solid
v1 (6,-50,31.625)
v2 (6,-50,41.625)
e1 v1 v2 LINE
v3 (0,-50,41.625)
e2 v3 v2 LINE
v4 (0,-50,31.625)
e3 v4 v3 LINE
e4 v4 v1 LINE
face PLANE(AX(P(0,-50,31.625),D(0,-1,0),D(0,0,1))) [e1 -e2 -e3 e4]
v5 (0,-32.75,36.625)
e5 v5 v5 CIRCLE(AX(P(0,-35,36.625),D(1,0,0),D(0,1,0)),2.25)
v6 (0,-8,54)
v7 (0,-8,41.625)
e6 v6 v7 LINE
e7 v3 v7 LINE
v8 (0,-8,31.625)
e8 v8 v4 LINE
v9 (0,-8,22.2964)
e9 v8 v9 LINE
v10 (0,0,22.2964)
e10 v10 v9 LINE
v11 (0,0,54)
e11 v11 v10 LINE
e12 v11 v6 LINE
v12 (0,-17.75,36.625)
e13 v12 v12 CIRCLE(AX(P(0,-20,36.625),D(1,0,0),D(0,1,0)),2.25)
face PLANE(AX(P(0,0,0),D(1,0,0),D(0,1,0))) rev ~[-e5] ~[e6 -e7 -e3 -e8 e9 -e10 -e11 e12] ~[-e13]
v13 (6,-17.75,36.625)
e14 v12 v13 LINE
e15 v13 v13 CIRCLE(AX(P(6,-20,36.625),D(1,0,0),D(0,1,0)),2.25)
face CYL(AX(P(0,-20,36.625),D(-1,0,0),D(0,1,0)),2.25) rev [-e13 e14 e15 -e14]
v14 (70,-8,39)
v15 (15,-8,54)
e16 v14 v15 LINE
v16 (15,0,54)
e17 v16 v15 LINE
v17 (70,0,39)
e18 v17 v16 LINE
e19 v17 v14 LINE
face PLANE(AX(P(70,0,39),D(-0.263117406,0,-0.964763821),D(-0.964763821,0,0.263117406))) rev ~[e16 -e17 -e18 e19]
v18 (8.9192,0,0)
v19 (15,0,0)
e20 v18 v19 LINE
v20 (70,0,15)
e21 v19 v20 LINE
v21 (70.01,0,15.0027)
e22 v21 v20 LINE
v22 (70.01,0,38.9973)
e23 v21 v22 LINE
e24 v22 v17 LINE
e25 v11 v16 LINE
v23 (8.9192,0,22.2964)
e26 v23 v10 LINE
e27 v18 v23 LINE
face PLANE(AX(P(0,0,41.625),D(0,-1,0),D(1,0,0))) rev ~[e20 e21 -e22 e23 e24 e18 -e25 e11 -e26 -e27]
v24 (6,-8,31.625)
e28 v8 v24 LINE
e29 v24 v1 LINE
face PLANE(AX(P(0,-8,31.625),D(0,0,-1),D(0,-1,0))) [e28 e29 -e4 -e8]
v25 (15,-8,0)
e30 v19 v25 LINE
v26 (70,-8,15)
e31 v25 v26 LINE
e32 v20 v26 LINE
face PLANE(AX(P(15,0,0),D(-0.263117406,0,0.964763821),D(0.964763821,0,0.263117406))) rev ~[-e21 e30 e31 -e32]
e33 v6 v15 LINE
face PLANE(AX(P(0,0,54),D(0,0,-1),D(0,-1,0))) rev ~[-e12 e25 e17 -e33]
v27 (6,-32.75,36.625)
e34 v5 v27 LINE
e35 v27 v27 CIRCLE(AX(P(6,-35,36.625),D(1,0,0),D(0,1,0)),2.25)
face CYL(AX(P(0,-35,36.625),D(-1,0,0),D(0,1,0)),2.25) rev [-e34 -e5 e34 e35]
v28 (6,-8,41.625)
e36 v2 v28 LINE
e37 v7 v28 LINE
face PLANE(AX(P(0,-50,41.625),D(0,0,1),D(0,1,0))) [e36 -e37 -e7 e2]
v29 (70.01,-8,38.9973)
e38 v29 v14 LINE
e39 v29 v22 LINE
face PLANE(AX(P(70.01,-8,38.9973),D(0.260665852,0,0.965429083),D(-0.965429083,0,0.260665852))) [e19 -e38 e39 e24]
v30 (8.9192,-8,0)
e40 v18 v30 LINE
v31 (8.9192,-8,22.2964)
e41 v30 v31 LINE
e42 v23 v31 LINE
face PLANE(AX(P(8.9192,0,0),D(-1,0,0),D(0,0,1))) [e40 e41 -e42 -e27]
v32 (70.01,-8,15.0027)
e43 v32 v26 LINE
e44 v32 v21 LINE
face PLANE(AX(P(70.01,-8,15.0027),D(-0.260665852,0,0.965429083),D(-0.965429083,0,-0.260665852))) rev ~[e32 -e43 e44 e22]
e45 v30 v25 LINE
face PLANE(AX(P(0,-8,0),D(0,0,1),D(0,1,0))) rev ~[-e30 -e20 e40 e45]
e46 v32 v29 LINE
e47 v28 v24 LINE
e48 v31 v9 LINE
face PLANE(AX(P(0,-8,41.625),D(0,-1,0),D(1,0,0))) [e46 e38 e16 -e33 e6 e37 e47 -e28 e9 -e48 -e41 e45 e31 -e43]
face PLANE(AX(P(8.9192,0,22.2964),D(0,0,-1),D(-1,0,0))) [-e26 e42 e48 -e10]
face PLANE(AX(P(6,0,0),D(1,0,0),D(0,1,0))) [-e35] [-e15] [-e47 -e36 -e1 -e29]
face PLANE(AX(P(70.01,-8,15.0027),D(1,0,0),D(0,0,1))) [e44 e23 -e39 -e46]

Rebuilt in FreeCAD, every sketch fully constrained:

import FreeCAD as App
import Part
import Sketcher
from FreeCAD import Vector

doc = App.newDocument("Part")
params = doc.addObject("Spreadsheet::Sheet", "Params")
for row, (alias, value) in enumerate([
    ("sketch1_diameter", "4.5 mm"),
    ("sketch1_height", "10 mm"),
    ("pad1_length", "6 mm"),
    ("sketch2_width", "8 mm"),
    ("sketch2_height", "54 mm"),
    ("pad2_length", "70 mm"),
    ("sketch3_height", "15 mm"),
    ("sketch3_width", "55 mm"),
    ("pocket1_length", "8 mm"),
    ("sketch4_height", "24 mm"),
    ("pad3_length", "8 mm"),
], start=1):
    params.set(f"A{row}", alias)
    params.set(f"B{row}", "=" + value)
    params.setAlias(f"B{row}", alias)

body = doc.addObject("PartDesign::Body", "Body")

# Sketch on YZ plane
sketch1 = body.newObject("Sketcher::SketchObject", "Sketch")
sketch1.AttachmentSupport = (doc.getObject("YZ_Plane"), [""])
sketch1.MapMode = "FlatFace"
sketch1.addGeometry([
    Part.LineSegment(Vector(-8, 41.6, 0), Vector(-50, 41.6, 0)),  # 0
    Part.LineSegment(Vector(-50, 41.6, 0), Vector(-50, 31.6, 0)),  # 1
    Part.LineSegment(Vector(-50, 31.6, 0), Vector(-8, 31.6, 0)),  # 2
    Part.LineSegment(Vector(-8, 31.6, 0), Vector(-8, 41.6, 0)),  # 3
    Part.Circle(Vector(-35, 36.6, 0), Vector(0, 0, 1), 2.2),  # 4
    Part.Circle(Vector(-20, 36.6, 0), Vector(0, 0, 1), 2.2),  # 5
], False)
sketch1.addConstraint([
    Sketcher.Constraint("Coincident", 0, 2, 1, 1),
    Sketcher.Constraint("Coincident", 1, 2, 2, 1),
    Sketcher.Constraint("Coincident", 2, 2, 3, 1),
    Sketcher.Constraint("Coincident", 3, 2, 0, 1),
    Sketcher.Constraint("Horizontal", 0),
    Sketcher.Constraint("Vertical", 1),
    Sketcher.Constraint("Horizontal", 2),
    Sketcher.Constraint("Vertical", 3),
    Sketcher.Constraint("Equal", 4, 5),
    Sketcher.Constraint("Horizontal", 4, 3, 5, 3),
    Sketcher.Constraint("Diameter", 4, 4.5),
    Sketcher.Constraint("DistanceY", 1, 2, 1, 1, 10.0),
    Sketcher.Constraint("DistanceX", 5, 3, -1, 1, 20.0),
    Sketcher.Constraint("DistanceX", 0, 2, -1, 1, 50.0),
    Sketcher.Constraint("DistanceX", 2, 2, -1, 1, 8.0),
    Sketcher.Constraint("DistanceX", 4, 3, 5, 3, 15.0),
    Sketcher.Constraint("DistanceY", 4, 3, 0, 2, 5.0),
    Sketcher.Constraint("DistanceY", -1, 1, 4, 3, 36.625),
])
sketch1.setExpression("Constraints[10]", "Params.sketch1_diameter")
sketch1.setExpression("Constraints[11]", "Params.sketch1_height")
pad1 = body.newObject("PartDesign::Pad", "Pad")
pad1.Profile = sketch1
pad1.setExpression("Length", "Params.pad1_length")

# Sketch on YZ plane
sketch2 = body.newObject("Sketcher::SketchObject", "Sketch001")
sketch2.AttachmentSupport = (doc.getObject("YZ_Plane"), [""])
sketch2.MapMode = "FlatFace"
sketch2.addGeometry([
    Part.LineSegment(Vector(-8, 54, 0), Vector(-8, 0, 0)),
    Part.LineSegment(Vector(-8, 0, 0), Vector(0, 0, 0)),
    Part.LineSegment(Vector(0, 0, 0), Vector(0, 54, 0)),
    Part.LineSegment(Vector(0, 54, 0), Vector(-8, 54, 0)),
], False)
sketch2.addConstraint([
    Sketcher.Constraint("Coincident", 0, 2, 1, 1),
    Sketcher.Constraint("Coincident", 1, 2, 2, 1),
    Sketcher.Constraint("Coincident", 2, 2, 3, 1),
    Sketcher.Constraint("Coincident", 3, 2, 0, 1),
    Sketcher.Constraint("Vertical", 0),
    Sketcher.Constraint("Horizontal", 1),
    Sketcher.Constraint("Vertical", 2),
    Sketcher.Constraint("Horizontal", 3),
    Sketcher.Constraint("Coincident", 1, 2, -1, 1),
    Sketcher.Constraint("DistanceX", 1, 1, 1, 2, 8.0),
    Sketcher.Constraint("DistanceY", 0, 2, 0, 1, 54.0),
])
sketch2.setExpression("Constraints[9]", "Params.sketch2_width")
sketch2.setExpression("Constraints[10]", "Params.sketch2_height")
pad2 = body.newObject("PartDesign::Pad", "Pad001")
pad2.Profile = sketch2
pad2.setExpression("Length", "Params.pad2_length")

# Sketch on XZ plane
sketch3 = body.newObject("Sketcher::SketchObject", "Sketch002")
sketch3.AttachmentSupport = (doc.getObject("XZ_Plane"), [""])
sketch3.MapMode = "FlatFace"
sketch3.addGeometry([
    Part.LineSegment(Vector(70, 15, 0), Vector(70, 0, 0)),  # 0
    Part.LineSegment(Vector(70, 0, 0), Vector(15, 0, 0)),  # 1
    Part.LineSegment(Vector(15, 0, 0), Vector(70, 15, 0)),  # 2
    Part.LineSegment(Vector(70, 54, 0), Vector(70, 39, 0)),  # 3
    Part.LineSegment(Vector(70, 39, 0), Vector(15, 54, 0)),  # 4
    Part.LineSegment(Vector(15, 54, 0), Vector(70, 54, 0)),  # 5
    Part.LineSegment(Vector(9, 22, 0), Vector(9, 0, 0)),  # 6
    Part.LineSegment(Vector(9, 0, 0), Vector(0, 0, 0)),  # 7
    Part.LineSegment(Vector(0, 0, 0), Vector(0, 22, 0)),  # 8
    Part.LineSegment(Vector(0, 22, 0), Vector(9, 22, 0)),  # 9
], False)
sketch3.addConstraint([
    Sketcher.Constraint("Coincident", 0, 2, 1, 1),
    Sketcher.Constraint("Coincident", 1, 2, 2, 1),
    Sketcher.Constraint("Coincident", 2, 2, 0, 1),
    Sketcher.Constraint("Coincident", 3, 2, 4, 1),
    Sketcher.Constraint("Coincident", 4, 2, 5, 1),
    Sketcher.Constraint("Coincident", 5, 2, 3, 1),
    Sketcher.Constraint("Coincident", 6, 2, 7, 1),
    Sketcher.Constraint("Coincident", 7, 2, 8, 1),
    Sketcher.Constraint("Coincident", 8, 2, 9, 1),
    Sketcher.Constraint("Coincident", 9, 2, 6, 1),
    Sketcher.Constraint("Vertical", 0),
    Sketcher.Constraint("Horizontal", 1),
    Sketcher.Constraint("Vertical", 3),
    Sketcher.Constraint("Horizontal", 5),
    Sketcher.Constraint("Vertical", 6),
    Sketcher.Constraint("Horizontal", 7),
    Sketcher.Constraint("Vertical", 8),
    Sketcher.Constraint("Horizontal", 9),
    Sketcher.Constraint("Coincident", 7, 2, -1, 1),
    Sketcher.Constraint("PointOnObject", 0, 2, -1),
    Sketcher.Constraint("Vertical", 2, 2, 3, 2),
    Sketcher.Constraint("Vertical", 1, 2, 4, 2),
    Sketcher.Constraint("Equal", 0, 3),
    Sketcher.Constraint("DistanceY", 0, 2, 0, 1, 15.0),
    Sketcher.Constraint("DistanceX", -1, 1, 1, 2, 15.0),
    Sketcher.Constraint("DistanceX", 1, 2, 1, 1, 55.0),
    Sketcher.Constraint("DistanceY", -1, 1, 3, 2, 39.0),
    Sketcher.Constraint("DistanceX", 7, 2, 7, 1, 8.9192),
    Sketcher.Constraint("DistanceY", 6, 2, 6, 1, 22.2964),
])
sketch3.setExpression("Constraints[23]", "Params.sketch3_height")
sketch3.setExpression("Constraints[25]", "Params.sketch3_width")
pocket1 = body.newObject("PartDesign::Pocket", "Pocket")
pocket1.Profile = sketch3
pocket1.setExpression("Length", "Params.pocket1_length")
pocket1.Reversed = True

# Sketch on XZ plane
sketch4 = body.newObject("Sketcher::SketchObject", "Sketch003")
sketch4.AttachmentSupport = (doc.getObject("XZ_Plane"), [""])
sketch4.MapMode = "FlatFace"
sketch4.AttachmentOffset = App.Placement(Vector(0, 0, 8), App.Rotation())
sketch4.addGeometry([
    Part.LineSegment(Vector(70.01, 38.997, 0), Vector(70, 39, 0)),
    Part.LineSegment(Vector(70, 39, 0), Vector(70, 15, 0)),
    Part.LineSegment(Vector(70, 15, 0), Vector(70.01, 15.003, 0)),
    Part.LineSegment(Vector(70.01, 15.003, 0), Vector(70.01, 38.997, 0)),
], False)
sketch4.addConstraint([
    Sketcher.Constraint("Coincident", 0, 2, 1, 1),
    Sketcher.Constraint("Coincident", 1, 2, 2, 1),
    Sketcher.Constraint("Coincident", 2, 2, 3, 1),
    Sketcher.Constraint("Coincident", 3, 2, 0, 1),
    Sketcher.Constraint("Vertical", 1),
    Sketcher.Constraint("Vertical", 3),
    Sketcher.Constraint("Equal", 0, 2),
    Sketcher.Constraint("DistanceY", 1, 2, 1, 1, 24.0),
    Sketcher.Constraint("DistanceX", 1, 2, 2, 2, 0.01),
    Sketcher.Constraint("DistanceX", -1, 1, 0, 2, 70.0),
    Sketcher.Constraint("DistanceY", -1, 1, 0, 2, 39.0),
    Sketcher.Constraint("Distance", 0, 0.0104),
])
sketch4.setExpression("Constraints[7]", "Params.sketch4_height")
pad3 = body.newObject("PartDesign::Pad", "Pad002")
pad3.Profile = sketch4
pad3.setExpression("Length", "Params.pad3_length")
pad3.Reversed = True

doc.recompute()
